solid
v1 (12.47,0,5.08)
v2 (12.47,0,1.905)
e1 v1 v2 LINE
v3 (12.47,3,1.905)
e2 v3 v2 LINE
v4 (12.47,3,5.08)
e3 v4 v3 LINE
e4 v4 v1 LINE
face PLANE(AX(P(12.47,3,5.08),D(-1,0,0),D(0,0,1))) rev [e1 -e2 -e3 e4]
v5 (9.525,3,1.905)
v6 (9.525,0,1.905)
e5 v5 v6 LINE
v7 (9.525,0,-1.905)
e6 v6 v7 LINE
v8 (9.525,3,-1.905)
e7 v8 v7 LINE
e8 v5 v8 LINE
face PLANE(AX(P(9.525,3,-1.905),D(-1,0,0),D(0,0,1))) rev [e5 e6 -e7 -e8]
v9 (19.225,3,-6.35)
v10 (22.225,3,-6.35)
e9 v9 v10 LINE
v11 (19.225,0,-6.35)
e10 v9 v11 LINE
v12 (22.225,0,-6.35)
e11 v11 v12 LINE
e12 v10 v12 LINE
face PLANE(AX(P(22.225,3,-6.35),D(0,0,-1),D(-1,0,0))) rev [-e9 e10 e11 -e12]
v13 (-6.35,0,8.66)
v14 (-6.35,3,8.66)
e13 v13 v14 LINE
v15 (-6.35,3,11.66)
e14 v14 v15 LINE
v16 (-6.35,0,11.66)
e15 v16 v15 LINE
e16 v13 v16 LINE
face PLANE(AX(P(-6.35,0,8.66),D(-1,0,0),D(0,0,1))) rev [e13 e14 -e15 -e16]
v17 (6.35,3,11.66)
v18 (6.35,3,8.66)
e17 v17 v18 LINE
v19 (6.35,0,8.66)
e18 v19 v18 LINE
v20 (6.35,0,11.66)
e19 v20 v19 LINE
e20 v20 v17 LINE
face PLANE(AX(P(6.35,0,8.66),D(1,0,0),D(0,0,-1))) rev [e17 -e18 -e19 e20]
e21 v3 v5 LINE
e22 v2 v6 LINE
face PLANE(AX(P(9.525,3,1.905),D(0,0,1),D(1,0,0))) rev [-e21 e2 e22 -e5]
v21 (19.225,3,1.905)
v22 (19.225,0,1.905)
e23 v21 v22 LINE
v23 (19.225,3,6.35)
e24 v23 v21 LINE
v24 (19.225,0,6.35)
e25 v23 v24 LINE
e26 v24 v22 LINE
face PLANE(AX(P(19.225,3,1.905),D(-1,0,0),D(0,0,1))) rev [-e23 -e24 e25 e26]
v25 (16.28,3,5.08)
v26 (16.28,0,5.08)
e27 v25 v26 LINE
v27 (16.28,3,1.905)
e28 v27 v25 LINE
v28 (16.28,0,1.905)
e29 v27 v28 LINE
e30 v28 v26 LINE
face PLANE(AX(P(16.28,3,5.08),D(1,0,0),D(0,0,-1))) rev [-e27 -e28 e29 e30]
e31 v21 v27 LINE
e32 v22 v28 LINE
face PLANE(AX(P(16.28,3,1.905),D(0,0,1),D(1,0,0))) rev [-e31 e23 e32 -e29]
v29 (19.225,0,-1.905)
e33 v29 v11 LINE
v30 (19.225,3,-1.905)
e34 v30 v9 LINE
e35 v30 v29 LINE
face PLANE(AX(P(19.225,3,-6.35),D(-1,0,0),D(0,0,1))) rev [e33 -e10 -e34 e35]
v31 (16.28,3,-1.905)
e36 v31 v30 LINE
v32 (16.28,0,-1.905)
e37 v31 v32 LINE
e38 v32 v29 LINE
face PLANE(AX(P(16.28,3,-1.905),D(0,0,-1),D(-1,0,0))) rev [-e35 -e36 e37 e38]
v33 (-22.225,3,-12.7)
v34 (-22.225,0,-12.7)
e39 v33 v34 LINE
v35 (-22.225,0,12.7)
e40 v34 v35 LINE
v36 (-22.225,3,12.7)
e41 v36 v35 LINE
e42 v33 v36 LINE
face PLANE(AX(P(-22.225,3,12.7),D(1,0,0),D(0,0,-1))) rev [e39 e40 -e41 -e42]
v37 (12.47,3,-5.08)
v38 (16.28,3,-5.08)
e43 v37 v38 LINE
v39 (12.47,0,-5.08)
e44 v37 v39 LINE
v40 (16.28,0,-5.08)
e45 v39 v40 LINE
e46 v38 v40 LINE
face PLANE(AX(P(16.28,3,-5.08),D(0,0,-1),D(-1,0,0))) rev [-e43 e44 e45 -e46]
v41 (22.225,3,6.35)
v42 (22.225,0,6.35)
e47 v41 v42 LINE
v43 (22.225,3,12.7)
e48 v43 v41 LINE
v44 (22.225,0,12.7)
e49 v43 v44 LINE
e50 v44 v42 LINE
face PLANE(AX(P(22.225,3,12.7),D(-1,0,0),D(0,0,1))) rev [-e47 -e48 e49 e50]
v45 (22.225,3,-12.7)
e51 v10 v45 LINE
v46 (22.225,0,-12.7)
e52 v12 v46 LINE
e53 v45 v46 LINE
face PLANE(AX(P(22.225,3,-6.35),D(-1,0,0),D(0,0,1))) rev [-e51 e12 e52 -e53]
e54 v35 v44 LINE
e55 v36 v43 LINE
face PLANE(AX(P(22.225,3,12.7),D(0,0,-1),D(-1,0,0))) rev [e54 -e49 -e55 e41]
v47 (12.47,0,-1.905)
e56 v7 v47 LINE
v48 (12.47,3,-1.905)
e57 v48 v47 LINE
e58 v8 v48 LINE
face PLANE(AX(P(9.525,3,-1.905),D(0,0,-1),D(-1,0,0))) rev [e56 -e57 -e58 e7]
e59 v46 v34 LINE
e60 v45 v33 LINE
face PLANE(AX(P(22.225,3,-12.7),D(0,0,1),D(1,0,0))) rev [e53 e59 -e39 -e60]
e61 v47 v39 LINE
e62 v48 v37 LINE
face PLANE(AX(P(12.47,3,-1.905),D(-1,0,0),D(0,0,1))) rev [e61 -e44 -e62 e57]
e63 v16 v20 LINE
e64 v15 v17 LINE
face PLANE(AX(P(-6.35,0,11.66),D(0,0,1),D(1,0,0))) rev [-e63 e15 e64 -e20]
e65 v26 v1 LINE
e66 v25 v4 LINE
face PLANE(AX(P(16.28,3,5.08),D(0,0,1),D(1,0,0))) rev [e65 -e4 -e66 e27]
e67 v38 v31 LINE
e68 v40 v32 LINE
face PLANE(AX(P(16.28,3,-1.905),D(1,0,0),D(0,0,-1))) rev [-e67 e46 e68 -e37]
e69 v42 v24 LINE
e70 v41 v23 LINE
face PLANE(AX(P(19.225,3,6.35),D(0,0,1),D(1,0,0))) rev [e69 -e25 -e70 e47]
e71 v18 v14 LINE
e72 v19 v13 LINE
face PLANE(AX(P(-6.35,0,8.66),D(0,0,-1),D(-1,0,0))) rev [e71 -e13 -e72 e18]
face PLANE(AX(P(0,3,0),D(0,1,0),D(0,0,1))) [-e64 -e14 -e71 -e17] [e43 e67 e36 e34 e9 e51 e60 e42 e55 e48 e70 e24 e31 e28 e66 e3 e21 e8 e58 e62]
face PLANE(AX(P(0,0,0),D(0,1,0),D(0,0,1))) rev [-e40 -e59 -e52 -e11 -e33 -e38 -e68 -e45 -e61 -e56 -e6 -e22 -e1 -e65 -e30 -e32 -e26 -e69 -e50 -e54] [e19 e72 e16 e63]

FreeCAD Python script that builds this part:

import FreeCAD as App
import Part
import Sketcher
Q = App.Units.Quantity

doc = App.newDocument("Part")
body = doc.addObject("PartDesign::Body", "Body")

# Sketch on XZ plane
sketch1 = body.newObject("Sketcher::SketchObject", "Sketch")
sketch1.AttachmentSupport = (doc.getObject("XZ_Plane"), [""])
sketch1.MapMode = "FlatFace"
sketch1.addGeometry(Part.LineSegment(App.Vector(19.2, -6.3, 0), App.Vector(22.2, -6.3, 0)), False)
sketch1.addGeometry(Part.LineSegment(App.Vector(22.2, -6.3, 0), App.Vector(22.2, -12.7, 0)), False)
sketch1.addGeometry(Part.LineSegment(App.Vector(22.2, -12.7, 0), App.Vector(-22.2, -12.7, 0)), False)
sketch1.addGeometry(Part.LineSegment(App.Vector(-22.2, -12.7, 0), App.Vector(-22.2, 12.7, 0)), False)
sketch1.addGeometry(Part.LineSegment(App.Vector(-22.2, 12.7, 0), App.Vector(22.2, 12.7, 0)), False)
sketch1.addGeometry(Part.LineSegment(App.Vector(22.2, 12.7, 0), App.Vector(22.2, 6.3, 0)), False)
sketch1.addGeometry(Part.LineSegment(App.Vector(22.2, 6.3, 0), App.Vector(19.2, 6.3, 0)), False)
sketch1.addGeometry(Part.LineSegment(App.Vector(19.2, 6.3, 0), App.Vector(19.2, 1.9, 0)), False)
sketch1.addGeometry(Part.LineSegment(App.Vector(19.2, 1.9, 0), App.Vector(16.3, 1.9, 0)), False)
sketch1.addGeometry(Part.LineSegment(App.Vector(16.3, 1.9, 0), App.Vector(16.3, 5.1, 0)), False)
sketch1.addGeometry(Part.LineSegment(App.Vector(16.3, 5.1, 0), App.Vector(12.5, 5.1, 0)), False)
sketch1.addGeometry(Part.LineSegment(App.Vector(12.5, 5.1, 0), App.Vector(12.5, 1.9, 0)), False)
sketch1.addGeometry(Part.LineSegment(App.Vector(12.5, 1.9, 0), App.Vector(9.5, 1.9, 0)), False)
sketch1.addGeometry(Part.LineSegment(App.Vector(9.5, 1.9, 0), App.Vector(9.5, -1.9, 0)), False)
sketch1.addGeometry(Part.LineSegment(App.Vector(9.5, -1.9, 0), App.Vector(12.5, -1.9, 0)), False)
sketch1.addGeometry(Part.LineSegment(App.Vector(12.5, -1.9, 0), App.Vector(12.5, -5.1, 0)), False)
sketch1.addGeometry(Part.LineSegment(App.Vector(12.5, -5.1, 0), App.Vector(16.3, -5.1, 0)), False)
sketch1.addGeometry(Part.LineSegment(App.Vector(16.3, -5.1, 0), App.Vector(16.3, -1.9, 0)), False)
sketch1.addGeometry(Part.LineSegment(App.Vector(16.3, -1.9, 0), App.Vector(19.2, -1.9, 0)), False)
sketch1.addGeometry(Part.LineSegment(App.Vector(19.2, -1.9, 0), App.Vector(19.2, -6.3, 0)), False)
sketch1.addConstraint(Sketcher.Constraint("Coincident", 0, 2, 1, 1))
sketch1.addConstraint(Sketcher.Constraint("Coincident", 1, 2, 2, 1))
sketch1.addConstraint(Sketcher.Constraint("Coincident", 2, 2, 3, 1))
sketch1.addConstraint(Sketcher.Constraint("Coincident", 3, 2, 4, 1))
sketch1.addConstraint(Sketcher.Constraint("Coincident", 4, 2, 5, 1))
sketch1.addConstraint(Sketcher.Constraint("Coincident", 5, 2, 6, 1))
sketch1.addConstraint(Sketcher.Constraint("Coincident", 6, 2, 7, 1))
sketch1.addConstraint(Sketcher.Constraint("Coincident", 7, 2, 8, 1))
sketch1.addConstraint(Sketcher.Constraint("Coincident", 8, 2, 9, 1))
sketch1.addConstraint(Sketcher.Constraint("Coincident", 9, 2, 10, 1))
sketch1.addConstraint(Sketcher.Constraint("Coincident", 10, 2, 11, 1))
sketch1.addConstraint(Sketcher.Constraint("Coincident", 11, 2, 12, 1))
sketch1.addConstraint(Sketcher.Constraint("Coincident", 12, 2, 13, 1))
sketch1.addConstraint(Sketcher.Constraint("Coincident", 13, 2, 14, 1))
sketch1.addConstraint(Sketcher.Constraint("Coincident", 14, 2, 15, 1))
sketch1.addConstraint(Sketcher.Constraint("Coincident", 15, 2, 16, 1))
sketch1.addConstraint(Sketcher.Constraint("Coincident", 16, 2, 17, 1))
sketch1.addConstraint(Sketcher.Constraint("Coincident", 17, 2, 18, 1))
sketch1.addConstraint(Sketcher.Constraint("Coincident", 18, 2, 19, 1))
sketch1.addConstraint(Sketcher.Constraint("Coincident", 19, 2, 0, 1))
sketch1.addConstraint(Sketcher.Constraint("Horizontal", 0))
sketch1.addConstraint(Sketcher.Constraint("Vertical", 1))
sketch1.addConstraint(Sketcher.Constraint("Horizontal", 2))
sketch1.addConstraint(Sketcher.Constraint("Vertical", 3))
sketch1.addConstraint(Sketcher.Constraint("Horizontal", 4))
sketch1.addConstraint(Sketcher.Constraint("Vertical", 5))
sketch1.addConstraint(Sketcher.Constraint("Horizontal", 6))
sketch1.addConstraint(Sketcher.Constraint("Vertical", 7))
sketch1.addConstraint(Sketcher.Constraint("Horizontal", 8))
sketch1.addConstraint(Sketcher.Constraint("Vertical", 9))
sketch1.addConstraint(Sketcher.Constraint("Horizontal", 10))
sketch1.addConstraint(Sketcher.Constraint("Vertical", 11))
sketch1.addConstraint(Sketcher.Constraint("Horizontal", 12))
sketch1.addConstraint(Sketcher.Constraint("Vertical", 13))
sketch1.addConstraint(Sketcher.Constraint("Horizontal", 14))
sketch1.addConstraint(Sketcher.Constraint("Vertical", 15))
sketch1.addConstraint(Sketcher.Constraint("Horizontal", 16))
sketch1.addConstraint(Sketcher.Constraint("Vertical", 17))
sketch1.addConstraint(Sketcher.Constraint("Horizontal", 18))
sketch1.addConstraint(Sketcher.Constraint("Vertical", 19))
sketch1.addConstraint(Sketcher.Constraint("Symmetric", 1, 2, 3, 2, -1, 1))
sketch1.addConstraint(Sketcher.Constraint("Symmetric", 0, 2, 5, 2, -1))
sketch1.addConstraint(Sketcher.Constraint("Symmetric", 11, 2, 14, 2, -1))
sketch1.addConstraint(Sketcher.Constraint("Symmetric", 9, 2, 16, 2, -1))
sketch1.addConstraint(Sketcher.Constraint("Symmetric", 7, 2, 18, 2, -1))
sketch1.addConstraint(Sketcher.Constraint("Horizontal", 8, 2, 11, 2))
sketch1.addConstraint(Sketcher.Constraint("Equal", 8, 12))
sketch1.addConstraint(Sketcher.Constraint("Equal", 16, 13))
sketch1.addConstraint(Sketcher.Constraint("DistanceY", 3, 1, 3, 2, Q("1 in")))
sketch1.addConstraint(Sketcher.Constraint("DistanceX", 2, 2, 2, 1, Q("1.75 in")))
sketch1.addConstraint(Sketcher.Constraint("DistanceX", 10, 2, 10, 1, Q("0.15 in")))
sketch1.addConstraint(Sketcher.Constraint("DistanceY", 1, 2, 1, 1, Q("0.25 in")))
sketch1.addConstraint(Sketcher.Constraint("DistanceY", -1, 1, 9, 2, Q("0.2 in")))
sketch1.addConstraint(Sketcher.Constraint("DistanceX", -1, 1, 12, 2, Q("0.375 in")))
sketch1.addConstraint(Sketcher.Constraint("DistanceX", 0, 1, 0, 2, Q("3 mm")))
pad1 = body.newObject("PartDesign::Pad", "Pad")
pad1.Profile = sketch1
pad1.Length = 3
pad1.Reversed = True

# Sketch on XZ plane
sketch2 = body.newObject("Sketcher::SketchObject", "Sketch001")
sketch2.AttachmentSupport = (doc.getObject("XZ_Plane"), [""])
sketch2.MapMode = "FlatFace"
sketch2.AttachmentOffset = App.Placement(App.Vector(0, 0, -3), App.Rotation())
sketch2.addGeometry(Part.LineSegment(App.Vector(-6.3, 8.7, 0), App.Vector(-6.3, 11.7, 0)), False)
sketch2.addGeometry(Part.LineSegment(App.Vector(-6.3, 11.7, 0), App.Vector(6.3, 11.7, 0)), False)
sketch2.addGeometry(Part.LineSegment(App.Vector(6.3, 11.7, 0), App.Vector(6.3, 8.7, 0)), False)
sketch2.addGeometry(Part.LineSegment(App.Vector(6.3, 8.7, 0), App.Vector(-6.3, 8.7, 0)), False)
sketch2.addConstraint(Sketcher.Constraint("Coincident", 0, 2, 1, 1))
sketch2.addConstraint(Sketcher.Constraint("Coincident", 1, 2, 2, 1))
sketch2.addConstraint(Sketcher.Constraint("Coincident", 2, 2, 3, 1))
sketch2.addConstraint(Sketcher.Constraint("Coincident", 3, 2, 0, 1))
sketch2.addConstraint(Sketcher.Constraint("Vertical", 0))
sketch2.addConstraint(Sketcher.Constraint("Horizontal", 1))
sketch2.addConstraint(Sketcher.Constraint("Vertical", 2))
sketch2.addConstraint(Sketcher.Constraint("Horizontal", 3))
sketch2.addConstraint(Sketcher.Constraint("DistanceX", 1, 1, 1, 2, Q("0.5 in")))
sketch2.addConstraint(Sketcher.Constraint("DistanceX", 0, 2, -1, 1, Q("0.25 in")))
sketch2.addConstraint(Sketcher.Constraint("DistanceY", 0, 1, 0, 2, Q("3 mm")))
sketch2.addConstraint(Sketcher.Constraint("DistanceY", -1, 1, 0, 2, Q("11.66 mm")))
pocket1 = body.newObject("PartDesign::Pocket", "Pocket")
pocket1.Profile = sketch2
pocket1.Type = "ThroughAll"
pocket1.Reversed = True

doc.recompute()
